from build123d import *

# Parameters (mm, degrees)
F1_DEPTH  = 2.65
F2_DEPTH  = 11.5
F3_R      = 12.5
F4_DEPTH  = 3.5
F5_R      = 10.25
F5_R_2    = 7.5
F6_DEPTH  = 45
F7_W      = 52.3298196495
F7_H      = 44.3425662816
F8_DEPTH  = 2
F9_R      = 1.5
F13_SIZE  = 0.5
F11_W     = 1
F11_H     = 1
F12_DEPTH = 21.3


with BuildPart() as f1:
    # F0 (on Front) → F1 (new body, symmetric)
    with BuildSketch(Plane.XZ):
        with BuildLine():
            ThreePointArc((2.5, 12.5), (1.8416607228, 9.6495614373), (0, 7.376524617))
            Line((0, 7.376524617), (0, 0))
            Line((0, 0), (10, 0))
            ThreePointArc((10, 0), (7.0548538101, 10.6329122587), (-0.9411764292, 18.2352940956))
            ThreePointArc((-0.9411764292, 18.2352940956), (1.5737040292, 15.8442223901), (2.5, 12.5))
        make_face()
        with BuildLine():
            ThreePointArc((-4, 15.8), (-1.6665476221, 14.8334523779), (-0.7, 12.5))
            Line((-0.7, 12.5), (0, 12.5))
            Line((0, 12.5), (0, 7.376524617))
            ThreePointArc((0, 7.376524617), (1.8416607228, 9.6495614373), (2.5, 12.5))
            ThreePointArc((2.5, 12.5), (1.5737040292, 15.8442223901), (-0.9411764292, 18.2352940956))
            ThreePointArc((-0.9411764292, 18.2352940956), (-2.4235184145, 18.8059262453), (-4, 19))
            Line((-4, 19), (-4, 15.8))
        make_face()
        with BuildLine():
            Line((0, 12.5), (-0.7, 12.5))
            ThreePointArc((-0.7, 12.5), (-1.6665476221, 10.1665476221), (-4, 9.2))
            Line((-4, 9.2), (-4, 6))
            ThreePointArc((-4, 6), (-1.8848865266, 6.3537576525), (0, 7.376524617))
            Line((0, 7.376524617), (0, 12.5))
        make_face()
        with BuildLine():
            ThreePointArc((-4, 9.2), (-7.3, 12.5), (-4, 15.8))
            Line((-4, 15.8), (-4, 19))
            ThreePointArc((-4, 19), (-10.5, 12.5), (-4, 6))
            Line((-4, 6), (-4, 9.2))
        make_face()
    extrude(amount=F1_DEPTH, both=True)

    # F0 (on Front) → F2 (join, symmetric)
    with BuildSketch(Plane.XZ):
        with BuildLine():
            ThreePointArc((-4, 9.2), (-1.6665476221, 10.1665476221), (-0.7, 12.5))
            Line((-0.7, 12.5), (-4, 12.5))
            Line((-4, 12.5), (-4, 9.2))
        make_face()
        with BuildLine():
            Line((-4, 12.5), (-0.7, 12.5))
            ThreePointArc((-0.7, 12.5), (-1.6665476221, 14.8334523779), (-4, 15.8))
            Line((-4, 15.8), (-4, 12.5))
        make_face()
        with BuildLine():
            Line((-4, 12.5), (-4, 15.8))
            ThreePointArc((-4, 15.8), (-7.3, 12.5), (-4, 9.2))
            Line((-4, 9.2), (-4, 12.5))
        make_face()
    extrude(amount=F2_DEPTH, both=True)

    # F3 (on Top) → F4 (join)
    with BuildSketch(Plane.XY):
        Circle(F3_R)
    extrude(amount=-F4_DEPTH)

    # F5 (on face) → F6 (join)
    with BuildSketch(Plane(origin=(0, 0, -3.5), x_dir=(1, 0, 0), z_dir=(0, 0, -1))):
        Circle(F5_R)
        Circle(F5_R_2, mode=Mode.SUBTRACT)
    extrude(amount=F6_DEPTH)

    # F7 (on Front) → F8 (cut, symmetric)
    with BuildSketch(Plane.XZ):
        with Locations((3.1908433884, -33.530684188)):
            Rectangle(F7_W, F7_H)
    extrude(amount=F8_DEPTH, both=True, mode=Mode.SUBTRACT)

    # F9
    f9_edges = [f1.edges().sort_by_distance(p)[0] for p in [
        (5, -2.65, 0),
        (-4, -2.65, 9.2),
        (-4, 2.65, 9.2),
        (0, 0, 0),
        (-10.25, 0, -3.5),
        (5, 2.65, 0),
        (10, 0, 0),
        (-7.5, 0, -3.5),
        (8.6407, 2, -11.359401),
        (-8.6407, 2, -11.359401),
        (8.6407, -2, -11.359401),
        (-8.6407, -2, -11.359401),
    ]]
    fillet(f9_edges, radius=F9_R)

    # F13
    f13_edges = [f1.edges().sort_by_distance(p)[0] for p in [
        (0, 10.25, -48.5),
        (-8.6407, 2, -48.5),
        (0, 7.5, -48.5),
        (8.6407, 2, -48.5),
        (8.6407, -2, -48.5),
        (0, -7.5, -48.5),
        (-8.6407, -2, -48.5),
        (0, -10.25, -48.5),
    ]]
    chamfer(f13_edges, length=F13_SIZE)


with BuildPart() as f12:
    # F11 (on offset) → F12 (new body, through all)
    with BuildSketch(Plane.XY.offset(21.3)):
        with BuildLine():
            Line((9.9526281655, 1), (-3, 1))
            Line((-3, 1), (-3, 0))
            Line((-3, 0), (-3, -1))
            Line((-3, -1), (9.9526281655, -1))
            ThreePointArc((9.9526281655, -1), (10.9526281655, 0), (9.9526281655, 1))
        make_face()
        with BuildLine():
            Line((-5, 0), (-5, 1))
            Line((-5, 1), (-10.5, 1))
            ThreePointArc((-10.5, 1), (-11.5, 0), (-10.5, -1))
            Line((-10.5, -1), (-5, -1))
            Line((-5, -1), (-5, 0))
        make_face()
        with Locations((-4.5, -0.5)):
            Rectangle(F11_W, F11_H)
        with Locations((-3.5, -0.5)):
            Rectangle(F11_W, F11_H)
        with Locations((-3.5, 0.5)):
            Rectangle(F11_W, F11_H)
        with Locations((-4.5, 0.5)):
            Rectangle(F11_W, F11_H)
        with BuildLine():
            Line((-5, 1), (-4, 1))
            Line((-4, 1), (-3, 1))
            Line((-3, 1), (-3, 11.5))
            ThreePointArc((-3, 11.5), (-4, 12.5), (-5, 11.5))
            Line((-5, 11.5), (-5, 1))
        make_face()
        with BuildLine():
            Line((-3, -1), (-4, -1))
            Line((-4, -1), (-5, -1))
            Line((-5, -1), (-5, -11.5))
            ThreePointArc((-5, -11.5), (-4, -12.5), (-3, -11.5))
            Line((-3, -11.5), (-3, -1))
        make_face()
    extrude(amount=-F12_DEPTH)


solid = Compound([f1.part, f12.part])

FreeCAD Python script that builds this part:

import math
import FreeCAD as App
import Part
import Sketcher


def edges_at(feature, points):
    """Names of the edges that pass closest to the given points."""
    edges = feature.Shape.Edges
    near = lambda p: min(range(len(edges)), key=lambda i: edges[i].distToShape(Part.Vertex(*p))[0])
    return sorted({f"Edge{near(p) + 1}" for p in points})


def add_polygon(sketch, points):
    """Adds a closed chain of lines whose ends are joined by coincident constraints."""
    first, n = sketch.GeometryCount, len(points)
    for a, b in zip(points, points[1:] + points[:1]):
        sketch.addGeometry(Part.LineSegment(App.Vector(*a, 0), App.Vector(*b, 0)), False)
    for i in range(n):
        sketch.addConstraint(Sketcher.Constraint("Coincident", first + i, 2, first + (i + 1) % n, 1))

doc = App.newDocument("Part")
body = doc.addObject("PartDesign::Body", "Body")

sketch1 = body.newObject("Sketcher::SketchObject", "Sketch")
sketch1.AttachmentSupport = (doc.getObject("XZ_Plane"), [""])
sketch1.MapMode = "FlatFace"
sketch1.addGeometry([
    Part.LineSegment(App.Vector(0, 0, 0), App.Vector(10, 0, 0)),
    Part.ArcOfCircle(Part.Circle(App.Vector(-10.7, 0, 0), App.Vector(0, 0, 1), 20.7), math.radians(0), math.radians(62)),
    Part.ArcOfCircle(Part.Circle(App.Vector(-4, 12.5, 0), App.Vector(0, 0, 1), 6.5), math.radians(62), math.radians(90)),
    Part.ArcOfCircle(Part.Circle(App.Vector(-4, 12.5, 0), App.Vector(0, 0, 1), 6.5), math.radians(90), math.radians(270)),
    Part.ArcOfCircle(Part.Circle(App.Vector(-4, 12.5, 0), App.Vector(0, 0, 1), 6.5), math.radians(-90), math.radians(-52)),
    Part.LineSegment(App.Vector(0, 7.4, 0), App.Vector(0, 0, 0)),
    Part.ArcOfCircle(Part.Circle(App.Vector(-4, 12.5, 0), App.Vector(0, 0, 1), 3.3), math.radians(0), math.radians(90)),
    Part.ArcOfCircle(Part.Circle(App.Vector(-4, 12.5, 0), App.Vector(0, 0, 1), 3.3), math.radians(-90), math.radians(0)),
    Part.ArcOfCircle(Part.Circle(App.Vector(-4, 12.5, 0), App.Vector(0, 0, 1), 3.3), math.radians(90), math.radians(270)),
], False)
sketch1.addConstraint([
    Sketcher.Constraint("Coincident", 0, 2, 1, 1),
    Sketcher.Constraint("Tangent", 1, 2, 2, 1),
    Sketcher.Constraint("Tangent", 2, 2, 3, 1),
    Sketcher.Constraint("Tangent", 3, 2, 4, 1),
    Sketcher.Constraint("Coincident", 4, 2, 5, 1),
    Sketcher.Constraint("Coincident", 5, 2, 0, 1),
    Sketcher.Constraint("Tangent", 6, 1, 7, 2),
    Sketcher.Constraint("Tangent", 7, 1, 8, 2),
    Sketcher.Constraint("Tangent", 8, 1, 6, 2),
    Sketcher.Constraint("Horizontal", 0),
    Sketcher.Constraint("Vertical", 5),
    Sketcher.Constraint("Coincident", 5, 2, -1, 1),
    Sketcher.Constraint("Coincident", 6, 3, 2, 3),
    Sketcher.Constraint("Equal", 2, 3),
    Sketcher.Constraint("Equal", 3, 4),
    Sketcher.Constraint("PointOnObject", 1, 3, -1),
    Sketcher.Constraint("Horizontal", 8, 3, 6, 1),
    Sketcher.Constraint("Vertical", 8, 3, 2, 2),
    Sketcher.Constraint("Vertical", 2, 2, 3, 2),
    Sketcher.Constraint("Vertical", 3, 2, 7, 1),
    Sketcher.Constraint("Vertical", 7, 1, 8, 1),
    Sketcher.Constraint("Radius", 2, 6.5),
    Sketcher.Constraint("Radius", 6, 3.3),
    Sketcher.Constraint("DistanceX", 0, 1, 0, 2, 10.0),
    Sketcher.Constraint("DistanceX", 2, 3, -1, 1, 4.0),
    Sketcher.Constraint("DistanceY", -1, 1, 2, 2, 19.0),
])
pad1 = body.newObject("PartDesign::Pad", "Pad")
pad1.Profile = sketch1
pad1.Length = 5.3
pad1.Midplane = True

sketch2 = body.newObject("Sketcher::SketchObject", "Sketch001")
sketch2.AttachmentSupport = (doc.getObject("XZ_Plane"), [""])
sketch2.MapMode = "FlatFace"
sketch2.addGeometry([
    Part.ArcOfCircle(Part.Circle(App.Vector(-4, 12.5, 0), App.Vector(0, 0, 1), 3.3), math.radians(-90), math.radians(0)),
    Part.ArcOfCircle(Part.Circle(App.Vector(-4, 12.5, 0), App.Vector(0, 0, 1), 3.3), math.radians(0), math.radians(90)),
    Part.ArcOfCircle(Part.Circle(App.Vector(-4, 12.5, 0), App.Vector(0, 0, 1), 3.3), math.radians(90), math.radians(270)),
], False)
sketch2.addConstraint([
    Sketcher.Constraint("Tangent", 0, 2, 1, 1),
    Sketcher.Constraint("Tangent", 1, 2, 2, 1),
    Sketcher.Constraint("Tangent", 2, 2, 0, 1),
    Sketcher.Constraint("Horizontal", 2, 3, 0, 2),
    Sketcher.Constraint("Vertical", 2, 3, 1, 2),
    Sketcher.Constraint("Vertical", 1, 2, 2, 2),
    Sketcher.Constraint("Radius", 0, 3.3),
    Sketcher.Constraint("DistanceX", 0, 3, -1, 1, 4.0),
    Sketcher.Constraint("DistanceY", -1, 1, 0, 3, 12.5),
])
pad2 = body.newObject("PartDesign::Pad", "Pad001")
pad2.Profile = sketch2
pad2.Length = 23
pad2.Midplane = True

sketch3 = body.newObject("Sketcher::SketchObject", "Sketch002")
sketch3.AttachmentSupport = (doc.getObject("XY_Plane"), [""])
sketch3.MapMode = "FlatFace"
sketch3.addGeometry(Part.Circle(App.Vector(0, 0, 0), App.Vector(0, 0, 1), 12), False)
sketch3.addConstraint([
    Sketcher.Constraint("Coincident", 0, 3, -1, 1),
    Sketcher.Constraint("Diameter", 0, 25.0),
])
pad3 = body.newObject("PartDesign::Pad", "Pad002")
pad3.Profile = sketch3
pad3.Length = 3.5
pad3.Reversed = True

sketch4 = body.newObject("Sketcher::SketchObject", "Sketch003")
sketch4.AttachmentSupport = (doc.getObject("XY_Plane"), [""])
sketch4.MapMode = "FlatFace"
sketch4.AttachmentOffset = App.Placement(App.Vector(0, 0, -3.5), App.Rotation())
sketch4.addGeometry([
    Part.Circle(App.Vector(0, 0, 0), App.Vector(0, 0, 1), 10),
    Part.Circle(App.Vector(0, 0, 0), App.Vector(0, 0, 1), 8),
], False)
sketch4.addConstraint([
    Sketcher.Constraint("Coincident", 0, 3, -1, 1),
    Sketcher.Constraint("Coincident", 1, 3, -1, 1),
    Sketcher.Constraint("Diameter", 1, 15.0),
    Sketcher.Constraint("Diameter", 0, 20.5),
])
pad4 = body.newObject("PartDesign::Pad", "Pad003")
pad4.Profile = sketch4
pad4.Length = 45
pad4.Reversed = True

sketch5 = body.newObject("Sketcher::SketchObject", "Sketch004")
sketch5.AttachmentSupport = (doc.getObject("XZ_Plane"), [""])
sketch5.MapMode = "FlatFace"
add_polygon(sketch5, [(-23, -11), (-23, -56), (29, -56), (29, -11)])
sketch5.addConstraint([
    Sketcher.Constraint("Vertical", 0),
    Sketcher.Constraint("Horizontal", 1),
    Sketcher.Constraint("Vertical", 2),
    Sketcher.Constraint("Horizontal", 3),
    Sketcher.Constraint("DistanceX", 1, 1, 1, 2, 52.32982),
    Sketcher.Constraint("DistanceY", 2, 2, -1, 1, 11.359401),
    Sketcher.Constraint("DistanceY", 0, 2, 0, 1, 44.342566),
    Sketcher.Constraint("DistanceX", 0, 2, -1, 1, 22.974066),
])
pocket1 = body.newObject("PartDesign::Pocket", "Pocket")
pocket1.Profile = sketch5
pocket1.Length = 4
pocket1.Midplane = True
doc.recompute()

fillet = body.newObject("PartDesign::Fillet", "Fillet")
fillet.Base = (pocket1, edges_at(pocket1, [
    (5, -2.65, 0),
    (-1.667, -2.65, 10.167),
    (-1.667, 2.65, 10.167),
    (0, 0, 0),
    (-10.25, 0, -3.5),
    (5, 2.65, 0),
    (10, 0, 0),
    (-7.5, 0, -3.5),
    (8.641, 2, -11.359),
    (-8.641, 2, -11.359),
    (8.641, -2, -11.359),
    (-8.641, -2, -11.359),
]))
fillet.Radius = 1.5
doc.recompute()

chamfer = body.newObject("PartDesign::Chamfer", "Chamfer")
chamfer.Base = (fillet, edges_at(fillet, [
    (0, 10.25, -48.5),
    (-8.641, 2, -48.5),
    (0, 7.5, -48.5),
    (8.641, 2, -48.5),
    (8.641, -2, -48.5),
    (0, -7.5, -48.5),
    (-8.641, -2, -48.5),
    (0, -10.25, -48.5),
]))
chamfer.Size = 0.5
body2 = doc.addObject("PartDesign::Body", "Body001")

sketch6 = body2.newObject("Sketcher::SketchObject", "Sketch005")
sketch6.AttachmentSupport = (doc.getObject("XY_Plane001"), [""])
sketch6.MapMode = "FlatFace"
sketch6.AttachmentOffset = App.Placement(App.Vector(0, 0, 21.3), App.Rotation())
sketch6.addGeometry([
    Part.LineSegment(App.Vector(10, 1, 0), App.Vector(-3, 1, 0)),
    Part.LineSegment(App.Vector(-3, 1, 0), App.Vector(-3, 11.5, 0)),
    Part.ArcOfCircle(Part.Circle(App.Vector(-4, 11.5, 0), App.Vector(0, 0, 1), 1), math.radians(0), math.radians(180)),
    Part.LineSegment(App.Vector(-5, 11.5, 0), App.Vector(-5, 1, 0)),
    Part.LineSegment(App.Vector(-5, 1, 0), App.Vector(-10.5, 1, 0)),
    Part.ArcOfCircle(Part.Circle(App.Vector(-10.5, 0, 0), App.Vector(0, 0, 1), 1), math.radians(90), math.radians(270)),
    Part.LineSegment(App.Vector(-10.5, -1, 0), App.Vector(-5, -1, 0)),
    Part.LineSegment(App.Vector(-5, -1, 0), App.Vector(-5, -11.5, 0)),
    Part.ArcOfCircle(Part.Circle(App.Vector(-4, -11.5, 0), App.Vector(0, 0, 1), 1), math.radians(180), math.radians(360)),
    Part.LineSegment(App.Vector(-3, -11.5, 0), App.Vector(-3, -1, 0)),
    Part.LineSegment(App.Vector(-3, -1, 0), App.Vector(10, -1, 0)),
    Part.ArcOfCircle(Part.Circle(App.Vector(10, 0, 0), App.Vector(0, 0, 1), 1), math.radians(-90), math.radians(90)),
], False)
sketch6.addConstraint([
    Sketcher.Constraint("Coincident", 0, 2, 1, 1),
    Sketcher.Constraint("Tangent", 1, 2, 2, 1),
    Sketcher.Constraint("Tangent", 2, 2, 3, 1),
    Sketcher.Constraint("Coincident", 3, 2, 4, 1),
    Sketcher.Constraint("Tangent", 4, 2, 5, 1),
    Sketcher.Constraint("Tangent", 5, 2, 6, 1),
    Sketcher.Constraint("Coincident", 6, 2, 7, 1),
    Sketcher.Constraint("Tangent", 7, 2, 8, 1),
    Sketcher.Constraint("Tangent", 8, 2, 9, 1),
    Sketcher.Constraint("Coincident", 9, 2, 10, 1),
    Sketcher.Constraint("Tangent", 10, 2, 11, 1),
    Sketcher.Constraint("Tangent", 11, 2, 0, 1),
    Sketcher.Constraint("Horizontal", 0),
    Sketcher.Constraint("Vertical", 1),
    Sketcher.Constraint("Vertical", 3),
    Sketcher.Constraint("Horizontal", 4),
    Sketcher.Constraint("Horizontal", 6),
    Sketcher.Constraint("Vertical", 7),
    Sketcher.Constraint("Vertical", 9),
    Sketcher.Constraint("Horizontal", 10),
    Sketcher.Constraint("Equal", 2, 5),
    Sketcher.Constraint("Equal", 5, 8),
    Sketcher.Constraint("Equal", 8, 11),
    Sketcher.Constraint("Symmetric", 2, 3, 8, 3, -1),
    Sketcher.Constraint("PointOnObject", 5, 3, -1),
    Sketcher.Constraint("PointOnObject", 11, 3, -1),
    Sketcher.Constraint("Radius", 2, 1.0),
    Sketcher.Constraint("DistanceX", 4, 2, 4, 1, 5.5),
    Sketcher.Constraint("DistanceY", 1, 1, 1, 2, 10.5),
    Sketcher.Constraint("DistanceX", 2, 3, -1, 1, 4.0),
    Sketcher.Constraint("DistanceX", 0, 2, 0, 1, 12.952628),
])
pad5 = body2.newObject("PartDesign::Pad", "Pad004")
pad5.Profile = sketch6
pad5.Length = 21.3
pad5.Reversed = True

doc.recompute()
